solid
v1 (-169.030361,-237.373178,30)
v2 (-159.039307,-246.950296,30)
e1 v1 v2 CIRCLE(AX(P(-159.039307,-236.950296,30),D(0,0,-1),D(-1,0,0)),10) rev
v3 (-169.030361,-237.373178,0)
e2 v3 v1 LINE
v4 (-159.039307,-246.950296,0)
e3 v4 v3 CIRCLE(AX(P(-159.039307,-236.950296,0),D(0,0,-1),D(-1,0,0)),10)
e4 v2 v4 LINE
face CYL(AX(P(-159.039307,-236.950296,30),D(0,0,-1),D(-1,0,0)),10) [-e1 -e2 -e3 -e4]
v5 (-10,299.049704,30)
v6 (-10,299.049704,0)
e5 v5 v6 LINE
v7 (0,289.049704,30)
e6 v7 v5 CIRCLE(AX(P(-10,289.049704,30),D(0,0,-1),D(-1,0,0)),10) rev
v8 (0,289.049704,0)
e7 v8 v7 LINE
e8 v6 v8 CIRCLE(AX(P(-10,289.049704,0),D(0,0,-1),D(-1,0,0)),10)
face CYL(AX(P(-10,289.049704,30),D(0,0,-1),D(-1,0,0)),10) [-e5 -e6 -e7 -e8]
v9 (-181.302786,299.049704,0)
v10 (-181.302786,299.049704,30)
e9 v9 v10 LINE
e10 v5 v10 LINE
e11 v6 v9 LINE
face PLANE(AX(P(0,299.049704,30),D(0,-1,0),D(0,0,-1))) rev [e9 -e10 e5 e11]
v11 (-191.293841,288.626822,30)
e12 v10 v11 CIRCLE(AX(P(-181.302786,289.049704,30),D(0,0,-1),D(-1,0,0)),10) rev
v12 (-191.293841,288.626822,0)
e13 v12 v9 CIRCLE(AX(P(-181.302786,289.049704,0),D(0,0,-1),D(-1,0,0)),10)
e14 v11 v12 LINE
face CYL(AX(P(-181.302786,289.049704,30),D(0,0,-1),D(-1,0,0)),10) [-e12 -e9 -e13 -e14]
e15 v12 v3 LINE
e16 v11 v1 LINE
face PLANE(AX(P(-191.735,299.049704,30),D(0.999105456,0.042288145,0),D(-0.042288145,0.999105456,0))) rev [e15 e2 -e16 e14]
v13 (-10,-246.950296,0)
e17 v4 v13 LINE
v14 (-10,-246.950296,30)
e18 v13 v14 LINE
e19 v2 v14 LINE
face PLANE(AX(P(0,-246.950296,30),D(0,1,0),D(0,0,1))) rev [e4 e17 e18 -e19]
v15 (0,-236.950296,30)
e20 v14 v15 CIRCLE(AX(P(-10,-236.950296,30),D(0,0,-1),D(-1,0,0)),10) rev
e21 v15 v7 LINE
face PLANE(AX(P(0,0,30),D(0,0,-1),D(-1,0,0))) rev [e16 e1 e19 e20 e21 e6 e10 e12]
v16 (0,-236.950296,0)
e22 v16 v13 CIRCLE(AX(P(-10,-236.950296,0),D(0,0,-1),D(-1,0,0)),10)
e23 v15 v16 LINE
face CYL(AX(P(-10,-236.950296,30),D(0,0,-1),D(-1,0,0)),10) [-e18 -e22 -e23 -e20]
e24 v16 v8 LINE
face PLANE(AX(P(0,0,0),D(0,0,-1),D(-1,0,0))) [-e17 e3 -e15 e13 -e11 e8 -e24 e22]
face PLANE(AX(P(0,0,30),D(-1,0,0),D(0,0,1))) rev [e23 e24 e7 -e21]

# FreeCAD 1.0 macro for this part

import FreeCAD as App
import Part
import Sketcher

V = App.Vector


def edges_at(feature, points):
    """Names of the edges that pass closest to the given points."""
    edges = feature.Shape.Edges
    near = lambda p: min(range(len(edges)), key=lambda i: edges[i].distToShape(Part.Vertex(*p))[0])
    return sorted({f"Edge{near(p) + 1}" for p in points})

doc = App.newDocument("Part")
params = doc.addObject("Spreadsheet::Sheet", "Params")
for row, (alias, value) in enumerate([
    ("sketch1_height", "546 mm"),
    ("pad1_length", "30 mm"),
    ("fillet_radius", "10 mm"),
    ("fillet2_radius", "10 mm"),
], start=1):
    params.set(f"A{row}", alias)
    params.set(f"B{row}", "=" + value)
    params.setAlias(f"B{row}", alias)

body = doc.addObject("PartDesign::Body", "Body")

sketch1 = body.newObject("Sketcher::SketchObject", "Sketch")
sketch1.AttachmentSupport = (doc.getObject("XY_Plane"), [""])
sketch1.MapMode = "FlatFace"
sketch1.addGeometry(Part.LineSegment(V(0, 299, 0), V(-192, 299, 0)), False)
sketch1.addGeometry(Part.LineSegment(V(-192, 299, 0), V(-169, -247, 0)), False)
sketch1.addGeometry(Part.LineSegment(V(-169, -247, 0), V(0, -247, 0)), False)
sketch1.addGeometry(Part.LineSegment(V(0, -247, 0), V(0, 299, 0)), False)
sketch1.addConstraint(Sketcher.Constraint("Coincident", 0, 2, 1, 1))
sketch1.addConstraint(Sketcher.Constraint("Coincident", 1, 2, 2, 1))
sketch1.addConstraint(Sketcher.Constraint("Coincident", 2, 2, 3, 1))
sketch1.addConstraint(Sketcher.Constraint("Coincident", 3, 2, 0, 1))
sketch1.addConstraint(Sketcher.Constraint("Horizontal", 0))
sketch1.addConstraint(Sketcher.Constraint("Horizontal", 2))
sketch1.addConstraint(Sketcher.Constraint("Vertical", 3))
sketch1.addConstraint(Sketcher.Constraint("PointOnObject", 2, 2, -2))
sketch1.addConstraint(Sketcher.Constraint("DistanceY", 3, 1, 3, 2, 546.0))
sketch1.addConstraint(Sketcher.Constraint("DistanceX", 0, 2, 0, 1, 191.735))
sketch1.addConstraint(Sketcher.Constraint("DistanceX", 2, 1, 2, 2, 168.625))
sketch1.addConstraint(Sketcher.Constraint("DistanceY", -1, 1, 0, 2, 299.049704))
sketch1.setExpression("Constraints[8]", "Params.sketch1_height")
pad1 = body.newObject("PartDesign::Pad", "Pad")
pad1.Profile = sketch1
pad1.setExpression("Length", "Params.pad1_length")
doc.recompute()

fillet = body.newObject("PartDesign::Fillet", "Fillet")
fillet.Base = (pad1, edges_at(pad1, [(-191.735, 299.05, 15), (0, 299.05, 15)]))
fillet.setExpression("Radius", "Params.fillet_radius")
doc.recompute()

fillet2 = body.newObject("PartDesign::Fillet", "Fillet001")
fillet2.Base = (fillet, edges_at(fillet, [(0, -246.95, 15), (-168.625, -246.95, 15)]))
fillet2.setExpression("Radius", "Params.fillet2_radius")

doc.recompute()
